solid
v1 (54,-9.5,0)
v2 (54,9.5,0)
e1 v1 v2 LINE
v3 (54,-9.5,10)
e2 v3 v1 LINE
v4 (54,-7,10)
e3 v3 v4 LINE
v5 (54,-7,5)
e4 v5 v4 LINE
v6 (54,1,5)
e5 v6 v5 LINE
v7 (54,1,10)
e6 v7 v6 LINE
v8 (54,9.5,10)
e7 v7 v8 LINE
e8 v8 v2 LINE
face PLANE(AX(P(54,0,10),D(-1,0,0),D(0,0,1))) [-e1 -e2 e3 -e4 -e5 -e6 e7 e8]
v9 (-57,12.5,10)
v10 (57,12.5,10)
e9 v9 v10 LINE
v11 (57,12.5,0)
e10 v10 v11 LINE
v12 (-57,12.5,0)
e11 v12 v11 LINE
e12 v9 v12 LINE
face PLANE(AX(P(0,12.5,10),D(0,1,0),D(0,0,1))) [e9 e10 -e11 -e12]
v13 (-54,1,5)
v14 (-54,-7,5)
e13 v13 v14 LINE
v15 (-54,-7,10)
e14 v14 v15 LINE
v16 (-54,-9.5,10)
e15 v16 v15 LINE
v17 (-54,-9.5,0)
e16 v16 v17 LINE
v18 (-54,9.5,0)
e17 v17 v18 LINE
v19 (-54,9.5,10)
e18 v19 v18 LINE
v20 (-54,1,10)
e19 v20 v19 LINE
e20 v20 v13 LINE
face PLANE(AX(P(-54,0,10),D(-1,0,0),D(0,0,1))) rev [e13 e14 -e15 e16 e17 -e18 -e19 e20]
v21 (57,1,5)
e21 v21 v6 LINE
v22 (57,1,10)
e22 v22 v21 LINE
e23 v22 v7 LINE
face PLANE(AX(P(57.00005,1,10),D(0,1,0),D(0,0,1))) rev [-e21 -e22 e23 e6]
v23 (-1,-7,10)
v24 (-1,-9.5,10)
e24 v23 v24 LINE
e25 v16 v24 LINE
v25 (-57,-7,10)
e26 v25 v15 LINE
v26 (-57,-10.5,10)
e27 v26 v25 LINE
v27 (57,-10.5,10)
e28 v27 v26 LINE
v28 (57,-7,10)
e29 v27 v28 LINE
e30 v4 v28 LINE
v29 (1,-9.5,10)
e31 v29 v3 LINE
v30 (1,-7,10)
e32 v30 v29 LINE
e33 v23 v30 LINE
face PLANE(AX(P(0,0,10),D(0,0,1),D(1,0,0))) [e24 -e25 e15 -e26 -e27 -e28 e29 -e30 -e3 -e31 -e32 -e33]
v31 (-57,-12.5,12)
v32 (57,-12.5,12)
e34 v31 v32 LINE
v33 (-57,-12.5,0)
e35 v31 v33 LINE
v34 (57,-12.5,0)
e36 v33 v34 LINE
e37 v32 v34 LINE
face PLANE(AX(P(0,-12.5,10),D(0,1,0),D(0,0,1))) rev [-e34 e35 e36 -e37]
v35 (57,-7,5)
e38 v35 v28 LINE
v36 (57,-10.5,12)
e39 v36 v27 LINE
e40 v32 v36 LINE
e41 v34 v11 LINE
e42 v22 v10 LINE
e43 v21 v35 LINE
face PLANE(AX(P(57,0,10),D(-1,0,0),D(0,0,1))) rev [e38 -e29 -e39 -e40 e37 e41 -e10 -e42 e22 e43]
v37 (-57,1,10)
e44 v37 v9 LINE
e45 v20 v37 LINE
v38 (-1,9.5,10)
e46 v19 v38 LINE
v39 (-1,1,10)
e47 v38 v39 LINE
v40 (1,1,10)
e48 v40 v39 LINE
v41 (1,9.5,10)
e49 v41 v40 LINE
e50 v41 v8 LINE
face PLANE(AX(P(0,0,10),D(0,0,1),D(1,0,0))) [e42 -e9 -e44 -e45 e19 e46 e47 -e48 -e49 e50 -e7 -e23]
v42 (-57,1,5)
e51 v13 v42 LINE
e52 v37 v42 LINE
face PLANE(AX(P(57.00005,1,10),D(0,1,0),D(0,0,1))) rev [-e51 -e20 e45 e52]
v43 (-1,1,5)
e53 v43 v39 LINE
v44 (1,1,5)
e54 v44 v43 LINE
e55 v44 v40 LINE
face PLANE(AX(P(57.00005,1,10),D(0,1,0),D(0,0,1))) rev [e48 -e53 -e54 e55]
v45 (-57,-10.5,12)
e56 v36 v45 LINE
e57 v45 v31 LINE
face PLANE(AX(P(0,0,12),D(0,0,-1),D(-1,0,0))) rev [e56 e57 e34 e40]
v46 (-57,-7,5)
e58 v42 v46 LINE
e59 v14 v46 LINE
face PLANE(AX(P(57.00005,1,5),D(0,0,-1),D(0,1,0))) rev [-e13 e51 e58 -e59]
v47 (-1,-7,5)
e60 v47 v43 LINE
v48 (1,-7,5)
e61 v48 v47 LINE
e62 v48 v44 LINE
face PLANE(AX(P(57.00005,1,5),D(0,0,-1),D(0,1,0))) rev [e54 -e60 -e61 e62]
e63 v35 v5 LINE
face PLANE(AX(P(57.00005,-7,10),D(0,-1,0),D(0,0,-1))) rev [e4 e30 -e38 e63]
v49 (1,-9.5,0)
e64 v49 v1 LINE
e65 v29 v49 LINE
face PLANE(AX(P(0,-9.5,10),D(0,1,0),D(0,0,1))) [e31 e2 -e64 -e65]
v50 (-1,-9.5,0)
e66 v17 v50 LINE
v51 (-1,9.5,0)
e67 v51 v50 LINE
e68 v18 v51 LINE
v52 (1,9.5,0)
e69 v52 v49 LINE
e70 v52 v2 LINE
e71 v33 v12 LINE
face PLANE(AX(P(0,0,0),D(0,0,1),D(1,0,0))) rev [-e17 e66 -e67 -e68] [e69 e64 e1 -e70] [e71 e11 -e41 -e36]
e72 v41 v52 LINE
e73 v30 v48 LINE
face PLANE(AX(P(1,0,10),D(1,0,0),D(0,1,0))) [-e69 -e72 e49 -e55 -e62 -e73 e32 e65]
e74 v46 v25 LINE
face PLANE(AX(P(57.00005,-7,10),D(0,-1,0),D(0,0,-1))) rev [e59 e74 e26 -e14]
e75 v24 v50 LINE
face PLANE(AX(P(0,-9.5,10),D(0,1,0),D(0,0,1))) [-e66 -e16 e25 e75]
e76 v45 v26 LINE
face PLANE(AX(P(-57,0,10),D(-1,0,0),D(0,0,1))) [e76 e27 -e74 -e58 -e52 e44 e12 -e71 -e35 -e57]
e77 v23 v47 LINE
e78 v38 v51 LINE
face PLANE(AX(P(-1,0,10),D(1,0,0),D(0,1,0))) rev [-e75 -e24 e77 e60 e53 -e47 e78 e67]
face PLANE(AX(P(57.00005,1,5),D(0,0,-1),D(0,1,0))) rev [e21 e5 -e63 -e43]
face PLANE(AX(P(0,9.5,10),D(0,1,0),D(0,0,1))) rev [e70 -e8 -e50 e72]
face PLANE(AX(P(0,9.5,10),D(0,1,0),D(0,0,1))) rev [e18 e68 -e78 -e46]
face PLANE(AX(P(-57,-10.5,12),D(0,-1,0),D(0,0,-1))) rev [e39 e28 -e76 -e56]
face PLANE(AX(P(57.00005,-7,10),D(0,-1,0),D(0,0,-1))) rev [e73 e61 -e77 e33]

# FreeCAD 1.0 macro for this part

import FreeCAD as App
import Part
import Sketcher

V = App.Vector


def add_polygon(sketch, points):
    """Adds a closed chain of lines whose ends are joined by coincident constraints."""
    first, n = sketch.GeometryCount, len(points)
    for a, b in zip(points, points[1:] + points[:1]):
        sketch.addGeometry(Part.LineSegment(App.Vector(*a, 0), App.Vector(*b, 0)), False)
    for i in range(n):
        sketch.addConstraint(Sketcher.Constraint("Coincident", first + i, 2, first + (i + 1) % n, 1))

doc = App.newDocument("Part")
body = doc.addObject("PartDesign::Body", "Body")

# Sketch on XY plane
sketch1 = body.newObject("Sketcher::SketchObject", "Sketch")
sketch1.AttachmentSupport = (doc.getObject("XY_Plane"), [""])
sketch1.MapMode = "FlatFace"
add_polygon(sketch1, [(-57, 12), (-57, -12), (57, -12), (57, 12)])  # lines 0-3
add_polygon(sketch1, [(-1, -10), (-54, -10), (-54, 10), (-1, 10)])  # lines 4-7
add_polygon(sketch1, [(54, -10), (1, -10), (1, 10), (54, 10)])  # lines 8-11
sketch1.addConstraint([
    Sketcher.Constraint("Vertical", 0),
    Sketcher.Constraint("Horizontal", 1),
    Sketcher.Constraint("Vertical", 2),
    Sketcher.Constraint("Horizontal", 3),
    Sketcher.Constraint("Horizontal", 4),
    Sketcher.Constraint("Vertical", 5),
    Sketcher.Constraint("Horizontal", 6),
    Sketcher.Constraint("Vertical", 7),
    Sketcher.Constraint("Horizontal", 8),
    Sketcher.Constraint("Vertical", 9),
    Sketcher.Constraint("Horizontal", 10),
    Sketcher.Constraint("Vertical", 11),
    Sketcher.Constraint("Symmetric", 0, 2, 2, 2, -1, 1),
    Sketcher.Constraint("Symmetric", 6, 2, 8, 2, -1, 1),
    Sketcher.Constraint("Symmetric", 4, 2, 10, 2, -1, 1),
    Sketcher.Constraint("Horizontal", 7, 2, 8, 2),
    Sketcher.Constraint("DistanceX", 1, 1, 1, 2, 114.0),
    Sketcher.Constraint("DistanceX", 4, 2, 4, 1, 53.0),
    Sketcher.Constraint("DistanceY", 0, 2, 0, 1, 25.0),
    Sketcher.Constraint("DistanceY", 5, 1, 5, 2, 19.0),
    Sketcher.Constraint("DistanceX", 4, 2, -1, 1, 54.0),
])
pad1 = body.newObject("PartDesign::Pad", "Pad")
pad1.Profile = sketch1
pad1.Length = 10

# Sketch on XY plane
sketch2 = body.newObject("Sketcher::SketchObject", "Sketch001")
sketch2.AttachmentSupport = (doc.getObject("XY_Plane"), [""])
sketch2.MapMode = "FlatFace"
sketch2.AttachmentOffset = App.Placement(V(0, 0, 10), App.Rotation())
add_polygon(sketch2, [(-57, -10.5), (-57, -12.5), (57, -12.5), (57, -10.5)])  # lines 0-3
sketch2.addConstraint([
    Sketcher.Constraint("Vertical", 0),
    Sketcher.Constraint("Horizontal", 1),
    Sketcher.Constraint("Vertical", 2),
    Sketcher.Constraint("Horizontal", 3),
    Sketcher.Constraint("DistanceX", 1, 1, 1, 2, 114.0),
    Sketcher.Constraint("DistanceY", 0, 2, 0, 1, 2.0),
    Sketcher.Constraint("DistanceX", 0, 2, -1, 1, 57.0),
    Sketcher.Constraint("DistanceY", 0, 2, -1, 1, 12.5),
])
pad2 = body.newObject("PartDesign::Pad", "Pad001")
pad2.Profile = sketch2
pad2.Length = 2

# Sketch on YZ plane
sketch3 = body.newObject("Sketcher::SketchObject", "Sketch002")
sketch3.AttachmentSupport = (doc.getObject("YZ_Plane"), [""])
sketch3.MapMode = "FlatFace"
sketch3.AttachmentOffset = App.Placement(V(0, 0, -57), App.Rotation())
add_polygon(sketch3, [(1, 5), (-7, 5), (-7, 10), (1, 10)])  # lines 0-3
sketch3.addConstraint([
    Sketcher.Constraint("Horizontal", 0),
    Sketcher.Constraint("Vertical", 1),
    Sketcher.Constraint("Horizontal", 2),
    Sketcher.Constraint("Vertical", 3),
    Sketcher.Constraint("DistanceX", 0, 2, 0, 1, 8.0),
    Sketcher.Constraint("DistanceY", 1, 1, 1, 2, 5.0),
    Sketcher.Constraint("DistanceX", 0, 2, -1, 1, 7.0),
    Sketcher.Constraint("DistanceY", -1, 1, 0, 2, 5.0),
])
pocket1 = body.newObject("PartDesign::Pocket", "Pocket")
pocket1.Profile = sketch3
pocket1.Type = "ThroughAll"
pocket1.Reversed = True

doc.recompute()
